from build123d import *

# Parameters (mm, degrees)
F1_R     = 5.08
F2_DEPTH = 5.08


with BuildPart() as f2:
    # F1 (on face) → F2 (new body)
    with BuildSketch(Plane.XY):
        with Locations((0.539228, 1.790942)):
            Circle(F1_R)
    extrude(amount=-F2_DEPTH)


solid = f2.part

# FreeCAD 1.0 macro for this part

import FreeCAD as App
import Part
import Sketcher
from FreeCAD import Vector
Q = App.Units.Quantity

doc = App.newDocument("Part")
body = doc.addObject("PartDesign::Body", "Body")

sketch1 = doc.addObject("Sketcher::SketchObject", "Sketch")
body.addObject(sketch1)
sketch1.AttachmentSupport = (doc.XY_Plane, [""])
sketch1.MapMode = "FlatFace"
sketch1.addGeometry(Part.Circle(Vector(0.539228, 1.790942, 0), Vector(0, 0, 1), 5.08), False)
sketch1.addConstraint([
    Sketcher.Constraint("Diameter", 0, Q("0.4 in")),
    Sketcher.Constraint("DistanceX", -1, 1, 0, 3, 0.539228),
    Sketcher.Constraint("DistanceY", -1, 1, 0, 3, 1.790942),
])
pad1 = doc.addObject("PartDesign::Pad", "Pad")
body.addObject(pad1)
pad1.Profile = sketch1
pad1.Length = Q("0.2 in")
pad1.Reversed = True

doc.recompute()
